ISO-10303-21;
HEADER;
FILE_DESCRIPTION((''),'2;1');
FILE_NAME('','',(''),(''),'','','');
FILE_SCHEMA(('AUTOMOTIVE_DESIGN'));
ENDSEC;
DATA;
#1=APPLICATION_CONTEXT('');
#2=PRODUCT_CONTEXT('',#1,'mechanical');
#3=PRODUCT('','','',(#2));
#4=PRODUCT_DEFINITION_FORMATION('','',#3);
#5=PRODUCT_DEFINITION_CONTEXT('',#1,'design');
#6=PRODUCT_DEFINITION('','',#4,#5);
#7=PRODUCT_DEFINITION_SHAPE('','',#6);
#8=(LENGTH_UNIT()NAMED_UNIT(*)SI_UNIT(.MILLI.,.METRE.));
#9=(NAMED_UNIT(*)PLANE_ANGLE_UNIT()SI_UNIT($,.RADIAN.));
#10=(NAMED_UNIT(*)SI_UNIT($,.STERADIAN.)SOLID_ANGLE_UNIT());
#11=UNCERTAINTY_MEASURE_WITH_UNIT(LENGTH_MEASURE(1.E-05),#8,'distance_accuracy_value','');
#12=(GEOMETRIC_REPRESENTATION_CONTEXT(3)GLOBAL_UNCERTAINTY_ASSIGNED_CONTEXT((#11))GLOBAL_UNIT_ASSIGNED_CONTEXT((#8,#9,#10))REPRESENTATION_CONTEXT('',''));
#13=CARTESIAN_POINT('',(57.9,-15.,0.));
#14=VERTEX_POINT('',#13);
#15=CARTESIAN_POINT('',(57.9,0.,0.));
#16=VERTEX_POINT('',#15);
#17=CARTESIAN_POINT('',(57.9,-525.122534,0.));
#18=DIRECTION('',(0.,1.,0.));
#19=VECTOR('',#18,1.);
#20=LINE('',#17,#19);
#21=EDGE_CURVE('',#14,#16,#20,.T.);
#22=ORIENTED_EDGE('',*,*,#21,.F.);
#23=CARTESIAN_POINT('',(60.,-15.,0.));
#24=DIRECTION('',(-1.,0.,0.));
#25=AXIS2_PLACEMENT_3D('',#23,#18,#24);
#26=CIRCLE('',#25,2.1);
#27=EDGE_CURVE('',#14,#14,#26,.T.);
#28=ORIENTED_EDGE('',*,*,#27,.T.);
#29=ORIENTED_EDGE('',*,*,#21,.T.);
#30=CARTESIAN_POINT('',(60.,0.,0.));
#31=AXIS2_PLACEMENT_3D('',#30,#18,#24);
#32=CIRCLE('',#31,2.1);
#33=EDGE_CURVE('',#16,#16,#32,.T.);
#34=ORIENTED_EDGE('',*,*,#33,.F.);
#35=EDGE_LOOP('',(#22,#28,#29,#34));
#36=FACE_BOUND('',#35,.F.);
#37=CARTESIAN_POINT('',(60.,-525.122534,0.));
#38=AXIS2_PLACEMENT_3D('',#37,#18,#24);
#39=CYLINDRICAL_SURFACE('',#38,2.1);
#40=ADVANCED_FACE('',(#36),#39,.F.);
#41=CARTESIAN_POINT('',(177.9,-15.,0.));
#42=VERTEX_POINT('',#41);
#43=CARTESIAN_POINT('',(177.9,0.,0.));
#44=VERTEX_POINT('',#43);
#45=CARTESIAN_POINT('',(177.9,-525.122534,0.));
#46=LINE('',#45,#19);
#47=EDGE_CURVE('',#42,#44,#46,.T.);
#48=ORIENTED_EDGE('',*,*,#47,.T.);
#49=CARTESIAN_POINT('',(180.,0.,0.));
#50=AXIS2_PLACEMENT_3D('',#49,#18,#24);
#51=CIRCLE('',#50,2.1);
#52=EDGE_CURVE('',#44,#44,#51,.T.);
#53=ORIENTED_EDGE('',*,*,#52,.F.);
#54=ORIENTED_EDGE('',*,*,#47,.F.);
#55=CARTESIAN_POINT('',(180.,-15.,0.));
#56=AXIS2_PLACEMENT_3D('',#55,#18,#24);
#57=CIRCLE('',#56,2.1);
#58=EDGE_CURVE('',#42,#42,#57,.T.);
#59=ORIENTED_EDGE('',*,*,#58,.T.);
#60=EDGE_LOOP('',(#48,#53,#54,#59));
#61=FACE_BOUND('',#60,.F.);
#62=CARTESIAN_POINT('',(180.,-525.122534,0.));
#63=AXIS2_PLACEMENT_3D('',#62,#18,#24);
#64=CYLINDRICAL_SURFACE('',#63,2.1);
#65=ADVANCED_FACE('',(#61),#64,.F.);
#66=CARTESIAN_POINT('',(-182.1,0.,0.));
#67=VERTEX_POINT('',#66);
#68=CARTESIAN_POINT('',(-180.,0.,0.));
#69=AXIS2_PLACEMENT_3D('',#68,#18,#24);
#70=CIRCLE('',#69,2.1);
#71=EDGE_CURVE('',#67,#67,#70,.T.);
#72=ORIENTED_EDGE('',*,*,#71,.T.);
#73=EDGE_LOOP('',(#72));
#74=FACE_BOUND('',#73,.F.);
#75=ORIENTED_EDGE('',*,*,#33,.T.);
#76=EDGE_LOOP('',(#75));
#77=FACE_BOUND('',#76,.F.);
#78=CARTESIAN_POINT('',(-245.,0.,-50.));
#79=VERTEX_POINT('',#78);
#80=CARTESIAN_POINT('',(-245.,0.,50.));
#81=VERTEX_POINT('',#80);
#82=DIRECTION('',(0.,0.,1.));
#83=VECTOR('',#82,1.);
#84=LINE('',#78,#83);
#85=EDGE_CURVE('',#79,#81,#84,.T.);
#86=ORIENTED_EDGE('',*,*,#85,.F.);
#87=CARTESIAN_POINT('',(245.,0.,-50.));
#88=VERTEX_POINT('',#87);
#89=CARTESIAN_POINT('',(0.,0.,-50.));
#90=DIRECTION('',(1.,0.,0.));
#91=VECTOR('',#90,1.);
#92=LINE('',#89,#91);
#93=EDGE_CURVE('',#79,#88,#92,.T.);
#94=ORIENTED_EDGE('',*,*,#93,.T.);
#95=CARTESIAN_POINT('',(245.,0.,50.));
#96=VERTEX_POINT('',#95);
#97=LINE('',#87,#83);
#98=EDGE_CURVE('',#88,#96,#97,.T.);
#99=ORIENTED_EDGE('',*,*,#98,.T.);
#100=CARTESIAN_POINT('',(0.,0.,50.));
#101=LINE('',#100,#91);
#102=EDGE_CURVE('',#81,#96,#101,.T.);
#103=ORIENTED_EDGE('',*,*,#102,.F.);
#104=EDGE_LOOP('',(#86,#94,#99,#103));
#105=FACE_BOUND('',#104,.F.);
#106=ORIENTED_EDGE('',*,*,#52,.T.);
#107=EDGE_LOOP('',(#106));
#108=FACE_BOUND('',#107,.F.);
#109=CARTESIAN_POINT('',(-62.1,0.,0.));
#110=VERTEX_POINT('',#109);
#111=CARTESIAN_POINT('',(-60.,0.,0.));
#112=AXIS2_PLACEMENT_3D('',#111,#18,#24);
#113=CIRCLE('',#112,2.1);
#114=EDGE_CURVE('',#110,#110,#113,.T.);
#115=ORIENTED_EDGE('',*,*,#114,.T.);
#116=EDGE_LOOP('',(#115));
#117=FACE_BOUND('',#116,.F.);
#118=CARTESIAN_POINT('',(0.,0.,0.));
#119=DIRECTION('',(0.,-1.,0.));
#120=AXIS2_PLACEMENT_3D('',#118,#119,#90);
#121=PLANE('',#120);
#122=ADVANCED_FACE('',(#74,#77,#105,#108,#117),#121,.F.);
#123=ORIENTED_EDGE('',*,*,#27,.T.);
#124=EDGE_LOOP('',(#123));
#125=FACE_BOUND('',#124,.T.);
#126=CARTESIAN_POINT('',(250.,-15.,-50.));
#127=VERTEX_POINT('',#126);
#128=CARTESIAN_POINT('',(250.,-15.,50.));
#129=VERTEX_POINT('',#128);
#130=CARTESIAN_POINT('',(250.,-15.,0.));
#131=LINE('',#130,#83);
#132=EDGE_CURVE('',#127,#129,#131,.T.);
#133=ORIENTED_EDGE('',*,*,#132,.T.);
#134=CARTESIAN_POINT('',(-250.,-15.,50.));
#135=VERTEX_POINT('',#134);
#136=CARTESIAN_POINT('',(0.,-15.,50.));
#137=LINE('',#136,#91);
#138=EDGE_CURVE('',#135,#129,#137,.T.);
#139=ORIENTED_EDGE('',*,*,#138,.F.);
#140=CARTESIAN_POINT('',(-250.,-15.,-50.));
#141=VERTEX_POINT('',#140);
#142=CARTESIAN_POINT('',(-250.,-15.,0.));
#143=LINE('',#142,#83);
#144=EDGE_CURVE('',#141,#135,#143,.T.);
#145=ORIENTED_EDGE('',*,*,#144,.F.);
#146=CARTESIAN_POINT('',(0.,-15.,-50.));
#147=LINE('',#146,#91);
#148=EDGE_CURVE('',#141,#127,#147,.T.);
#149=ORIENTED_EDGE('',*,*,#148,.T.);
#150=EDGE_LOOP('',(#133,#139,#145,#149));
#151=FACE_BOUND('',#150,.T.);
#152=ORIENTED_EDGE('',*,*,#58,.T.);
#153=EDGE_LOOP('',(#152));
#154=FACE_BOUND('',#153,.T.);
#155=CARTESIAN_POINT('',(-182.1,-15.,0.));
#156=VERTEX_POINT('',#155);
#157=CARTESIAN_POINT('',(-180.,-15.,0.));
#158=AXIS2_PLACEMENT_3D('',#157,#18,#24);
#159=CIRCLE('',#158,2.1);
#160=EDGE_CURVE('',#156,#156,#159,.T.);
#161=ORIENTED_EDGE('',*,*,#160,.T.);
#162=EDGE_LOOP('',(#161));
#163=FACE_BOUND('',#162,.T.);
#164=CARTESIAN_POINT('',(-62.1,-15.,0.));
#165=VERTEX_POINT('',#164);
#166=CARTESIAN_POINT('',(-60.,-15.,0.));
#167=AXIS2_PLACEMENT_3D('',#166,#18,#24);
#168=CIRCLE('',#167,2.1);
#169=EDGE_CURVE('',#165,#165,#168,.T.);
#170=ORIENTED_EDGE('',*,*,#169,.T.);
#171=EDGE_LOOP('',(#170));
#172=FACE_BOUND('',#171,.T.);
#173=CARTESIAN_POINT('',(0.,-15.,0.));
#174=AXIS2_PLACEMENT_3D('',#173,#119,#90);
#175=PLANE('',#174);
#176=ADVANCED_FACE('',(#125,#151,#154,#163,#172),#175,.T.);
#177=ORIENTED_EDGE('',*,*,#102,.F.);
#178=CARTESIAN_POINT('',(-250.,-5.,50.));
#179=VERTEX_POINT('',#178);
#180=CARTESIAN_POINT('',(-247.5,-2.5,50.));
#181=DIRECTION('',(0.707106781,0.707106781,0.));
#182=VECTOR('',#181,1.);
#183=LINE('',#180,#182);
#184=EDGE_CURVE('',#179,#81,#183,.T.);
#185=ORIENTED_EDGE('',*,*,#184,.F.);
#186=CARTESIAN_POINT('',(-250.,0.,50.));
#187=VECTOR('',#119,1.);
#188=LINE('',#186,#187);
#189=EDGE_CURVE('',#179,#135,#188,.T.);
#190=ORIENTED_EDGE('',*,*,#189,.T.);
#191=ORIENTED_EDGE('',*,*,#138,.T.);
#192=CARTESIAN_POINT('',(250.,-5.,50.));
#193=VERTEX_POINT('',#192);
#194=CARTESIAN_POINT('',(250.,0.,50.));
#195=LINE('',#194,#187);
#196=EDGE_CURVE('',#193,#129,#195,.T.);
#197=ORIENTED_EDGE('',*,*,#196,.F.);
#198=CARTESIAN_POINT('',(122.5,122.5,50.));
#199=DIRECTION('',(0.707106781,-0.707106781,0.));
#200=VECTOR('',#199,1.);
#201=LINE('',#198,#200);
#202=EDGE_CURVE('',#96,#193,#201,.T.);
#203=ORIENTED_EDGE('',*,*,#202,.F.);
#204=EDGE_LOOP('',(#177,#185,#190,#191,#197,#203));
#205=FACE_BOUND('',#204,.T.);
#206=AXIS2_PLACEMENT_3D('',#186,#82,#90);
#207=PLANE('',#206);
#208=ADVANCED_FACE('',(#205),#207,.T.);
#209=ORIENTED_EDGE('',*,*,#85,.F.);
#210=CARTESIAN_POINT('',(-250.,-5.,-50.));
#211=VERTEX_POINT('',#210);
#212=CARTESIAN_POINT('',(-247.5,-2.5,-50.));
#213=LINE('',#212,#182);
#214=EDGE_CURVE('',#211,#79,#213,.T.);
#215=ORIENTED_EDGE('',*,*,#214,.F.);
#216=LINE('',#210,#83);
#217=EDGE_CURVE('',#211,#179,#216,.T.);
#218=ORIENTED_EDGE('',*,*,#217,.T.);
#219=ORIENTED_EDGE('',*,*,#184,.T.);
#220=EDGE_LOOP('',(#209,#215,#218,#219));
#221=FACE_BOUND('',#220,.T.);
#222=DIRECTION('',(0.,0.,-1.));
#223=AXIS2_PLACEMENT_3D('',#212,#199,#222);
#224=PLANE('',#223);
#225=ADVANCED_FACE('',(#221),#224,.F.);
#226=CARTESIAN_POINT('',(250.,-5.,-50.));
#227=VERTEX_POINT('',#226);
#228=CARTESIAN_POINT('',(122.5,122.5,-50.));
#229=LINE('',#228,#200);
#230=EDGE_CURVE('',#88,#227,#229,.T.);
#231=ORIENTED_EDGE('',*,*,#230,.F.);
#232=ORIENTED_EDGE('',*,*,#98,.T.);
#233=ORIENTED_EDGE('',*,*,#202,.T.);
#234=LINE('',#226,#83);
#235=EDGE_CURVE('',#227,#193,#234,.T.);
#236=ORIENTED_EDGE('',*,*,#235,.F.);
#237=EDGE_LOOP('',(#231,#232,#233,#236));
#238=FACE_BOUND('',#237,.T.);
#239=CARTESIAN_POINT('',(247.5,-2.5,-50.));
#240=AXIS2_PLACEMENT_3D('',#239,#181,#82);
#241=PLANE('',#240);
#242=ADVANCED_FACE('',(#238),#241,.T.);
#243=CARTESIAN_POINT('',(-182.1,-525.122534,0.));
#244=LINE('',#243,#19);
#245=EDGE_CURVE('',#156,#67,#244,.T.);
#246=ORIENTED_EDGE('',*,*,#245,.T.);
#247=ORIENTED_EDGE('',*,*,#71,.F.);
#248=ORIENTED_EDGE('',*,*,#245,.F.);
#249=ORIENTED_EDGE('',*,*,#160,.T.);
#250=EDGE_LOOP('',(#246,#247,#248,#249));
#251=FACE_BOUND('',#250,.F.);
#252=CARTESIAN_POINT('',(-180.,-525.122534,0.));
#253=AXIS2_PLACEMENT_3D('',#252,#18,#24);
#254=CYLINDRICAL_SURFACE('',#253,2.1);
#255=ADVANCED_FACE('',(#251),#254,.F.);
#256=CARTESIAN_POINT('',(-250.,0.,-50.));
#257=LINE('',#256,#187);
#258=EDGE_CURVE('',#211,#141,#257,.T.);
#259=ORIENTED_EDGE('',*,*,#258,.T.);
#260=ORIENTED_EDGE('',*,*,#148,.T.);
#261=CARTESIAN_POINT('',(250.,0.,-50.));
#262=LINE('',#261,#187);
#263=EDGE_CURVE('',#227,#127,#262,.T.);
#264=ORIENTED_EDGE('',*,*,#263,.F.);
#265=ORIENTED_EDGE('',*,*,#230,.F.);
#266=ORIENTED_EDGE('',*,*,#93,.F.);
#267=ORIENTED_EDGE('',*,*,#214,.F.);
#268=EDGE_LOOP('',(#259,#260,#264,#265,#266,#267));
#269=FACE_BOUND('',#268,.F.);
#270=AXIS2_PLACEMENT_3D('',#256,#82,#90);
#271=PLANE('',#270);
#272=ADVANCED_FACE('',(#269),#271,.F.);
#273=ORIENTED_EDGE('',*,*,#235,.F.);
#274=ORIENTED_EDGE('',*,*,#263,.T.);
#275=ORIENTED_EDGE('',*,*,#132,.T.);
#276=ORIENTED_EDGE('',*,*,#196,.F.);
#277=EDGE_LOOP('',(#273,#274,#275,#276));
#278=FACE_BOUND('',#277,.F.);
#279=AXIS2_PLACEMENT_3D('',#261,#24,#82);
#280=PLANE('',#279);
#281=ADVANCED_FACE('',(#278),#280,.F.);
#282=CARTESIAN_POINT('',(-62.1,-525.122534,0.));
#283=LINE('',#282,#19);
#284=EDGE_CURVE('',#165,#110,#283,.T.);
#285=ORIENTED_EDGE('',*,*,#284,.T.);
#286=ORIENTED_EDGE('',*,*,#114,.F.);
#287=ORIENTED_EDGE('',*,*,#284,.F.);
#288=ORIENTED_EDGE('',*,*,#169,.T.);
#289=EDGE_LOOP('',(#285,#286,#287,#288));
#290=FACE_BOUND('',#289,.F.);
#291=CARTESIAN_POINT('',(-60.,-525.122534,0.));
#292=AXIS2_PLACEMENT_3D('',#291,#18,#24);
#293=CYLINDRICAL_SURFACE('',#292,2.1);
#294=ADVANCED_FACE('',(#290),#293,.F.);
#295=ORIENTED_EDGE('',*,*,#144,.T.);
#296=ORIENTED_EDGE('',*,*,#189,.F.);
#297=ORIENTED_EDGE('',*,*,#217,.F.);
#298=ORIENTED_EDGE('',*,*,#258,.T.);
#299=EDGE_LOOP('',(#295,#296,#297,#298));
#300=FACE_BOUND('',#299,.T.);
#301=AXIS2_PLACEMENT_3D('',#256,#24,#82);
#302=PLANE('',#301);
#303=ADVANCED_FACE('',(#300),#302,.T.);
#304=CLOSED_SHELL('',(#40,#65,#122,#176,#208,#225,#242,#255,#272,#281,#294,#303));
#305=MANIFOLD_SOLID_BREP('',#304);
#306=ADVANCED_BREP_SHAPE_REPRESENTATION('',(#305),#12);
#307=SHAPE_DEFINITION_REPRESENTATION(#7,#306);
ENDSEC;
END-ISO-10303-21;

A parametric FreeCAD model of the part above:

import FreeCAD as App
import Part
import Sketcher
from FreeCAD import Vector
Q = App.Units.Quantity


def edges_at(feature, points):
    """Names of the edges that pass closest to the given points."""
    edges = feature.Shape.Edges
    near = lambda p: min(range(len(edges)), key=lambda i: edges[i].distToShape(Part.Vertex(*p))[0])
    return sorted({f"Edge{near(p) + 1}" for p in points})


def add_polygon(sketch, points):
    """Adds a closed chain of lines whose ends are joined by coincident constraints."""
    first, n = sketch.GeometryCount, len(points)
    for a, b in zip(points, points[1:] + points[:1]):
        sketch.addGeometry(Part.LineSegment(App.Vector(*a, 0), App.Vector(*b, 0)), False)
    for i in range(n):
        sketch.addConstraint(Sketcher.Constraint("Coincident", first + i, 2, first + (i + 1) % n, 1))

doc = App.newDocument("Part")
body = doc.addObject("PartDesign::Body", "Body")

sketch1 = doc.addObject("Sketcher::SketchObject", "Sketch")
body.addObject(sketch1)
sketch1.AttachmentSupport = (doc.XZ_Plane, [""])
sketch1.MapMode = "FlatFace"
add_polygon(sketch1, [(-250, 50), (-250, -50), (250, -50), (250, 50)])
sketch1.addConstraint([
    Sketcher.Constraint("Vertical", 0),
    Sketcher.Constraint("Horizontal", 1),
    Sketcher.Constraint("Vertical", 2),
    Sketcher.Constraint("Horizontal", 3),
    Sketcher.Constraint("Symmetric", 0, 2, 2, 2, -1, 1),
    Sketcher.Constraint("DistanceX", 1, 1, 1, 2, Q("500 mm")),
    Sketcher.Constraint("DistanceY", 0, 2, 0, 1, Q("100 mm")),
])
pad1 = doc.addObject("PartDesign::Pad", "Pad")
body.addObject(pad1)
pad1.Profile = sketch1
pad1.Length = 15

sketch2 = doc.addObject("Sketcher::SketchObject", "Sketch001")
body.addObject(sketch2)
sketch2.AttachmentSupport = (doc.XZ_Plane, [""])
sketch2.MapMode = "FlatFace"
sketch2.AttachmentOffset = App.Placement(Vector(0, 0, 15), App.Rotation())
sketch2.addGeometry([
    Part.Circle(Vector(-180, 0, 0), Vector(0, 0, 1), 2.1),
    Part.Circle(Vector(-60, 0, 0), Vector(0, 0, 1), 2.1),
    Part.Circle(Vector(60, 0, 0), Vector(0, 0, 1), 2.1),
    Part.Circle(Vector(180, 0, 0), Vector(0, 0, 1), 2.1),
], False)
sketch2.addConstraint([
    Sketcher.Constraint("Equal", 0, 1),
    Sketcher.Constraint("Equal", 1, 2),
    Sketcher.Constraint("Equal", 2, 3),
    Sketcher.Constraint("Symmetric", 1, 3, 2, 3, -1, 1),
    Sketcher.Constraint("Symmetric", 0, 3, 3, 3, -1, 1),
    Sketcher.Constraint("PointOnObject", 0, 3, -1),
    Sketcher.Constraint("PointOnObject", 1, 3, -1),
    Sketcher.Constraint("Diameter", 0, Q("4.2 mm")),
    Sketcher.Constraint("DistanceX", 0, 3, -1, 1, Q("180 mm")),
    Sketcher.Constraint("DistanceX", 1, 3, -1, 1, Q("60 mm")),
])
doc.recompute()
hole = doc.addObject("PartDesign::Hole", "Hole")
body.addObject(hole)
hole.Profile = sketch2
hole.ThreadType = "None"
hole.Diameter = 4.2
hole.DepthType = "ThroughAll"
doc.recompute()

chamfer = doc.addObject("PartDesign::Chamfer", "Chamfer")
body.addObject(chamfer)
chamfer.Base = (hole, edges_at(hole, [(-250, 0, 0), (250, 0, 0)]))
chamfer.Size = 5

doc.recompute()
